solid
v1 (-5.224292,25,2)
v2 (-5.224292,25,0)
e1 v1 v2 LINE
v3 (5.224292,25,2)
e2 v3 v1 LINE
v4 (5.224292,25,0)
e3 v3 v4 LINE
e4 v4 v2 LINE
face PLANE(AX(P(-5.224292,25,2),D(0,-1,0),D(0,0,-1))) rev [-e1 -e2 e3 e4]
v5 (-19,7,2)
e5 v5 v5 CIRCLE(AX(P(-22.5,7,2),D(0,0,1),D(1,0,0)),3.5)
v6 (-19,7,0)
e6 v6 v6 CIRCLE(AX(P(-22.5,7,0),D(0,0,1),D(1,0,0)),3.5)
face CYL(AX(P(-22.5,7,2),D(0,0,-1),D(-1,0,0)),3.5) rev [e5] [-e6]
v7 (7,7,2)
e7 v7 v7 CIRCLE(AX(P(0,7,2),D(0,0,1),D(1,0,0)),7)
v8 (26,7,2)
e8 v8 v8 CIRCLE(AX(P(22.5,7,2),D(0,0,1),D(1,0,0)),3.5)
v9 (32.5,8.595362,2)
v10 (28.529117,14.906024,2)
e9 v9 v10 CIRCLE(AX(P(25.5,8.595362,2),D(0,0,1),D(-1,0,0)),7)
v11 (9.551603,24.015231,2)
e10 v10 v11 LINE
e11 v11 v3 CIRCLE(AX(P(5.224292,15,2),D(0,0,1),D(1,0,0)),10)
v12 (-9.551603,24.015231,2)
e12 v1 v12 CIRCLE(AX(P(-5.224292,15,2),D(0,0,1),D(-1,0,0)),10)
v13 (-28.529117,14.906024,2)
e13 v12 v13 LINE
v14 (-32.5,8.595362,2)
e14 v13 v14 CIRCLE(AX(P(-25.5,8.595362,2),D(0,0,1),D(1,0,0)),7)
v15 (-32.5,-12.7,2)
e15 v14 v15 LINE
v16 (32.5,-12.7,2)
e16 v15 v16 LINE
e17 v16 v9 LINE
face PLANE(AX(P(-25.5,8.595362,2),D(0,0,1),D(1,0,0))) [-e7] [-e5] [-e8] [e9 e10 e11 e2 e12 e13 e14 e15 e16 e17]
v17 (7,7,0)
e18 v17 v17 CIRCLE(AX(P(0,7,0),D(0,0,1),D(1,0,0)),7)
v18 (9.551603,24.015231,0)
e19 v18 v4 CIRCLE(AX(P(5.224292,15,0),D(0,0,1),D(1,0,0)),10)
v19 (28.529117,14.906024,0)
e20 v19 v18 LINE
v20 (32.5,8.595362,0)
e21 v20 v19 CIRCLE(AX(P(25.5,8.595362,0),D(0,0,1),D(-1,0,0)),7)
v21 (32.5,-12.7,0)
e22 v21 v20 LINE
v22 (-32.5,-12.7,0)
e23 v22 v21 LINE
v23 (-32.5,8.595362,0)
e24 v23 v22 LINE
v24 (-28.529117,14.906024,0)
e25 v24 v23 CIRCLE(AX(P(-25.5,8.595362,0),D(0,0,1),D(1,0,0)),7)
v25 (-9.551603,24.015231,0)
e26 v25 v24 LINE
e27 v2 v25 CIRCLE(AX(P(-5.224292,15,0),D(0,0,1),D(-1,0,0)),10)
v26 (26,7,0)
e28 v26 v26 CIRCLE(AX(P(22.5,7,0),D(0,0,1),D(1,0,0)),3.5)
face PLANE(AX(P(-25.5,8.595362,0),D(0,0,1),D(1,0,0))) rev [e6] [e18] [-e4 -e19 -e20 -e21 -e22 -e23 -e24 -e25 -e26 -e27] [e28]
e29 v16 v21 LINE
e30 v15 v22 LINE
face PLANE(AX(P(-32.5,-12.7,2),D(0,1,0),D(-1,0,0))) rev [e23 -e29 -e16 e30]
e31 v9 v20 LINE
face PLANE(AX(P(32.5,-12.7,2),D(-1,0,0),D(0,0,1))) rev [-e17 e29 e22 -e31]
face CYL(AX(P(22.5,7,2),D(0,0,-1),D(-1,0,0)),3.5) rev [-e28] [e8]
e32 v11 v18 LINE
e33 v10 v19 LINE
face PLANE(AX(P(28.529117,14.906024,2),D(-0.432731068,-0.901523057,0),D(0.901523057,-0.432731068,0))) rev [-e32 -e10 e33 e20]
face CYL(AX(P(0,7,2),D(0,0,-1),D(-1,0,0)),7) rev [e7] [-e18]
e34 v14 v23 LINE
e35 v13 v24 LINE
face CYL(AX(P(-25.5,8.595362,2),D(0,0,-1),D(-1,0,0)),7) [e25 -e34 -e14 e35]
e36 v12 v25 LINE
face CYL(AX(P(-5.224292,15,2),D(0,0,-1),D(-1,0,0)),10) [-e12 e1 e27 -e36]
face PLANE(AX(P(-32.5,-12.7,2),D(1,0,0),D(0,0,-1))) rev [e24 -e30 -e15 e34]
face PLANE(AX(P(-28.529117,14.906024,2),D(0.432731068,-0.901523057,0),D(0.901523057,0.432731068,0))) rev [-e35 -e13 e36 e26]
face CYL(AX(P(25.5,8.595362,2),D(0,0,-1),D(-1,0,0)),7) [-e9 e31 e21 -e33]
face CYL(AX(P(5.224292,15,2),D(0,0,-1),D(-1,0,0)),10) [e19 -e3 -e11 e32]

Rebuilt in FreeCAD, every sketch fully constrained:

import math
import FreeCAD as App
import Part
import Sketcher

V = App.Vector

doc = App.newDocument("Part")
params = doc.addObject("Spreadsheet::Sheet", "Params")
for row, (alias, value) in enumerate([
    ("sketch1_diameter", "7 mm"),
    ("sketch1_diameter2", "14 mm"),
    ("sketch1_radius", "10 mm"),
    ("sketch1_width", "65 mm"),
    ("pad1_length", "2 mm"),
], start=1):
    params.set(f"A{row}", alias)
    params.set(f"B{row}", "=" + value)
    params.setAlias(f"B{row}", alias)

body = doc.addObject("PartDesign::Body", "Body")

# Sketch on XY plane
sketch1 = body.newObject("Sketcher::SketchObject", "Sketch")
sketch1.AttachmentSupport = (doc.getObject("XY_Plane"), [""])
sketch1.MapMode = "FlatFace"
sketch1.addGeometry([
    Part.LineSegment(V(-32.5, -12.7, 0), V(32.5, -12.7, 0)),  # 0
    Part.LineSegment(V(32.5, -12.7, 0), V(32.5, 8.6, 0)),  # 1
    Part.ArcOfCircle(Part.Circle(V(25.5, 8.6, 0), V(0, 0, 1), 7), math.radians(0), math.radians(64)),  # 2
    Part.LineSegment(V(28.5, 14.9, 0), V(9.6, 24, 0)),  # 3
    Part.ArcOfCircle(Part.Circle(V(5.2, 15, 0), V(0, 0, 1), 10), math.radians(64), math.radians(90)),  # 4
    Part.LineSegment(V(5.2, 25, 0), V(-5.2, 25, 0)),  # 5
    Part.ArcOfCircle(Part.Circle(V(-5.2, 15, 0), V(0, 0, 1), 10), math.radians(90), math.radians(116)),  # 6
    Part.LineSegment(V(-9.6, 24, 0), V(-28.5, 14.9, 0)),  # 7
    Part.ArcOfCircle(Part.Circle(V(-25.5, 8.6, 0), V(0, 0, 1), 7), math.radians(116), math.radians(180)),  # 8
    Part.LineSegment(V(-32.5, 8.6, 0), V(-32.5, -12.7, 0)),  # 9
    Part.Circle(V(-22.5, 7, 0), V(0, 0, 1), 3.5),  # 10
    Part.Circle(V(0, 7, 0), V(0, 0, 1), 7),  # 11
    Part.Circle(V(22.5, 7, 0), V(0, 0, 1), 3.5),  # 12
], False)
sketch1.addConstraint([
    Sketcher.Constraint("Coincident", 0, 2, 1, 1),
    Sketcher.Constraint("Tangent", 1, 2, 2, 1),
    Sketcher.Constraint("Tangent", 2, 2, 3, 1),
    Sketcher.Constraint("Tangent", 3, 2, 4, 1),
    Sketcher.Constraint("Tangent", 4, 2, 5, 1),
    Sketcher.Constraint("Tangent", 5, 2, 6, 1),
    Sketcher.Constraint("Tangent", 6, 2, 7, 1),
    Sketcher.Constraint("Tangent", 7, 2, 8, 1),
    Sketcher.Constraint("Tangent", 8, 2, 9, 1),
    Sketcher.Constraint("Coincident", 9, 2, 0, 1),
    Sketcher.Constraint("Horizontal", 0),
    Sketcher.Constraint("Vertical", 1),
    Sketcher.Constraint("Horizontal", 5),
    Sketcher.Constraint("Vertical", 9),
    Sketcher.Constraint("Equal", 4, 6),
    Sketcher.Constraint("Equal", 2, 8),
    Sketcher.Constraint("Equal", 8, 11),
    Sketcher.Constraint("Equal", 10, 12),
    Sketcher.Constraint("Symmetric", 2, 3, 8, 3, -2),
    Sketcher.Constraint("Symmetric", 10, 3, 12, 3, -2),
    Sketcher.Constraint("PointOnObject", 11, 3, -2),
    Sketcher.Constraint("Horizontal", 10, 3, 11, 3),
    Sketcher.Constraint("Horizontal", 3, 2, 6, 2),
    Sketcher.Constraint("Diameter", 10, 7.0),
    Sketcher.Constraint("Diameter", 11, 14.0),
    Sketcher.Constraint("Radius", 4, 10.0),
    Sketcher.Constraint("DistanceX", 0, 1, 0, 2, 65.0),
    Sketcher.Constraint("DistanceY", -1, 1, 4, 3, 15.0),
    Sketcher.Constraint("DistanceY", -1, 1, 10, 3, 7.0),
    Sketcher.Constraint("DistanceX", 8, 3, 10, 3, 3.0),
    Sketcher.Constraint("DistanceY", 0, 2, -1, 1, 12.7),
    Sketcher.Constraint("DistanceX", 5, 2, 5, 1, 10.448585),
    Sketcher.Constraint("DistanceY", 1, 1, 1, 2, 21.295362),
])
sketch1.setExpression("Constraints[23]", "Params.sketch1_diameter")
sketch1.setExpression("Constraints[24]", "Params.sketch1_diameter2")
sketch1.setExpression("Constraints[25]", "Params.sketch1_radius")
sketch1.setExpression("Constraints[26]", "Params.sketch1_width")
pad1 = body.newObject("PartDesign::Pad", "Pad")
pad1.Profile = sketch1
pad1.setExpression("Length", "Params.pad1_length")

doc.recompute()
